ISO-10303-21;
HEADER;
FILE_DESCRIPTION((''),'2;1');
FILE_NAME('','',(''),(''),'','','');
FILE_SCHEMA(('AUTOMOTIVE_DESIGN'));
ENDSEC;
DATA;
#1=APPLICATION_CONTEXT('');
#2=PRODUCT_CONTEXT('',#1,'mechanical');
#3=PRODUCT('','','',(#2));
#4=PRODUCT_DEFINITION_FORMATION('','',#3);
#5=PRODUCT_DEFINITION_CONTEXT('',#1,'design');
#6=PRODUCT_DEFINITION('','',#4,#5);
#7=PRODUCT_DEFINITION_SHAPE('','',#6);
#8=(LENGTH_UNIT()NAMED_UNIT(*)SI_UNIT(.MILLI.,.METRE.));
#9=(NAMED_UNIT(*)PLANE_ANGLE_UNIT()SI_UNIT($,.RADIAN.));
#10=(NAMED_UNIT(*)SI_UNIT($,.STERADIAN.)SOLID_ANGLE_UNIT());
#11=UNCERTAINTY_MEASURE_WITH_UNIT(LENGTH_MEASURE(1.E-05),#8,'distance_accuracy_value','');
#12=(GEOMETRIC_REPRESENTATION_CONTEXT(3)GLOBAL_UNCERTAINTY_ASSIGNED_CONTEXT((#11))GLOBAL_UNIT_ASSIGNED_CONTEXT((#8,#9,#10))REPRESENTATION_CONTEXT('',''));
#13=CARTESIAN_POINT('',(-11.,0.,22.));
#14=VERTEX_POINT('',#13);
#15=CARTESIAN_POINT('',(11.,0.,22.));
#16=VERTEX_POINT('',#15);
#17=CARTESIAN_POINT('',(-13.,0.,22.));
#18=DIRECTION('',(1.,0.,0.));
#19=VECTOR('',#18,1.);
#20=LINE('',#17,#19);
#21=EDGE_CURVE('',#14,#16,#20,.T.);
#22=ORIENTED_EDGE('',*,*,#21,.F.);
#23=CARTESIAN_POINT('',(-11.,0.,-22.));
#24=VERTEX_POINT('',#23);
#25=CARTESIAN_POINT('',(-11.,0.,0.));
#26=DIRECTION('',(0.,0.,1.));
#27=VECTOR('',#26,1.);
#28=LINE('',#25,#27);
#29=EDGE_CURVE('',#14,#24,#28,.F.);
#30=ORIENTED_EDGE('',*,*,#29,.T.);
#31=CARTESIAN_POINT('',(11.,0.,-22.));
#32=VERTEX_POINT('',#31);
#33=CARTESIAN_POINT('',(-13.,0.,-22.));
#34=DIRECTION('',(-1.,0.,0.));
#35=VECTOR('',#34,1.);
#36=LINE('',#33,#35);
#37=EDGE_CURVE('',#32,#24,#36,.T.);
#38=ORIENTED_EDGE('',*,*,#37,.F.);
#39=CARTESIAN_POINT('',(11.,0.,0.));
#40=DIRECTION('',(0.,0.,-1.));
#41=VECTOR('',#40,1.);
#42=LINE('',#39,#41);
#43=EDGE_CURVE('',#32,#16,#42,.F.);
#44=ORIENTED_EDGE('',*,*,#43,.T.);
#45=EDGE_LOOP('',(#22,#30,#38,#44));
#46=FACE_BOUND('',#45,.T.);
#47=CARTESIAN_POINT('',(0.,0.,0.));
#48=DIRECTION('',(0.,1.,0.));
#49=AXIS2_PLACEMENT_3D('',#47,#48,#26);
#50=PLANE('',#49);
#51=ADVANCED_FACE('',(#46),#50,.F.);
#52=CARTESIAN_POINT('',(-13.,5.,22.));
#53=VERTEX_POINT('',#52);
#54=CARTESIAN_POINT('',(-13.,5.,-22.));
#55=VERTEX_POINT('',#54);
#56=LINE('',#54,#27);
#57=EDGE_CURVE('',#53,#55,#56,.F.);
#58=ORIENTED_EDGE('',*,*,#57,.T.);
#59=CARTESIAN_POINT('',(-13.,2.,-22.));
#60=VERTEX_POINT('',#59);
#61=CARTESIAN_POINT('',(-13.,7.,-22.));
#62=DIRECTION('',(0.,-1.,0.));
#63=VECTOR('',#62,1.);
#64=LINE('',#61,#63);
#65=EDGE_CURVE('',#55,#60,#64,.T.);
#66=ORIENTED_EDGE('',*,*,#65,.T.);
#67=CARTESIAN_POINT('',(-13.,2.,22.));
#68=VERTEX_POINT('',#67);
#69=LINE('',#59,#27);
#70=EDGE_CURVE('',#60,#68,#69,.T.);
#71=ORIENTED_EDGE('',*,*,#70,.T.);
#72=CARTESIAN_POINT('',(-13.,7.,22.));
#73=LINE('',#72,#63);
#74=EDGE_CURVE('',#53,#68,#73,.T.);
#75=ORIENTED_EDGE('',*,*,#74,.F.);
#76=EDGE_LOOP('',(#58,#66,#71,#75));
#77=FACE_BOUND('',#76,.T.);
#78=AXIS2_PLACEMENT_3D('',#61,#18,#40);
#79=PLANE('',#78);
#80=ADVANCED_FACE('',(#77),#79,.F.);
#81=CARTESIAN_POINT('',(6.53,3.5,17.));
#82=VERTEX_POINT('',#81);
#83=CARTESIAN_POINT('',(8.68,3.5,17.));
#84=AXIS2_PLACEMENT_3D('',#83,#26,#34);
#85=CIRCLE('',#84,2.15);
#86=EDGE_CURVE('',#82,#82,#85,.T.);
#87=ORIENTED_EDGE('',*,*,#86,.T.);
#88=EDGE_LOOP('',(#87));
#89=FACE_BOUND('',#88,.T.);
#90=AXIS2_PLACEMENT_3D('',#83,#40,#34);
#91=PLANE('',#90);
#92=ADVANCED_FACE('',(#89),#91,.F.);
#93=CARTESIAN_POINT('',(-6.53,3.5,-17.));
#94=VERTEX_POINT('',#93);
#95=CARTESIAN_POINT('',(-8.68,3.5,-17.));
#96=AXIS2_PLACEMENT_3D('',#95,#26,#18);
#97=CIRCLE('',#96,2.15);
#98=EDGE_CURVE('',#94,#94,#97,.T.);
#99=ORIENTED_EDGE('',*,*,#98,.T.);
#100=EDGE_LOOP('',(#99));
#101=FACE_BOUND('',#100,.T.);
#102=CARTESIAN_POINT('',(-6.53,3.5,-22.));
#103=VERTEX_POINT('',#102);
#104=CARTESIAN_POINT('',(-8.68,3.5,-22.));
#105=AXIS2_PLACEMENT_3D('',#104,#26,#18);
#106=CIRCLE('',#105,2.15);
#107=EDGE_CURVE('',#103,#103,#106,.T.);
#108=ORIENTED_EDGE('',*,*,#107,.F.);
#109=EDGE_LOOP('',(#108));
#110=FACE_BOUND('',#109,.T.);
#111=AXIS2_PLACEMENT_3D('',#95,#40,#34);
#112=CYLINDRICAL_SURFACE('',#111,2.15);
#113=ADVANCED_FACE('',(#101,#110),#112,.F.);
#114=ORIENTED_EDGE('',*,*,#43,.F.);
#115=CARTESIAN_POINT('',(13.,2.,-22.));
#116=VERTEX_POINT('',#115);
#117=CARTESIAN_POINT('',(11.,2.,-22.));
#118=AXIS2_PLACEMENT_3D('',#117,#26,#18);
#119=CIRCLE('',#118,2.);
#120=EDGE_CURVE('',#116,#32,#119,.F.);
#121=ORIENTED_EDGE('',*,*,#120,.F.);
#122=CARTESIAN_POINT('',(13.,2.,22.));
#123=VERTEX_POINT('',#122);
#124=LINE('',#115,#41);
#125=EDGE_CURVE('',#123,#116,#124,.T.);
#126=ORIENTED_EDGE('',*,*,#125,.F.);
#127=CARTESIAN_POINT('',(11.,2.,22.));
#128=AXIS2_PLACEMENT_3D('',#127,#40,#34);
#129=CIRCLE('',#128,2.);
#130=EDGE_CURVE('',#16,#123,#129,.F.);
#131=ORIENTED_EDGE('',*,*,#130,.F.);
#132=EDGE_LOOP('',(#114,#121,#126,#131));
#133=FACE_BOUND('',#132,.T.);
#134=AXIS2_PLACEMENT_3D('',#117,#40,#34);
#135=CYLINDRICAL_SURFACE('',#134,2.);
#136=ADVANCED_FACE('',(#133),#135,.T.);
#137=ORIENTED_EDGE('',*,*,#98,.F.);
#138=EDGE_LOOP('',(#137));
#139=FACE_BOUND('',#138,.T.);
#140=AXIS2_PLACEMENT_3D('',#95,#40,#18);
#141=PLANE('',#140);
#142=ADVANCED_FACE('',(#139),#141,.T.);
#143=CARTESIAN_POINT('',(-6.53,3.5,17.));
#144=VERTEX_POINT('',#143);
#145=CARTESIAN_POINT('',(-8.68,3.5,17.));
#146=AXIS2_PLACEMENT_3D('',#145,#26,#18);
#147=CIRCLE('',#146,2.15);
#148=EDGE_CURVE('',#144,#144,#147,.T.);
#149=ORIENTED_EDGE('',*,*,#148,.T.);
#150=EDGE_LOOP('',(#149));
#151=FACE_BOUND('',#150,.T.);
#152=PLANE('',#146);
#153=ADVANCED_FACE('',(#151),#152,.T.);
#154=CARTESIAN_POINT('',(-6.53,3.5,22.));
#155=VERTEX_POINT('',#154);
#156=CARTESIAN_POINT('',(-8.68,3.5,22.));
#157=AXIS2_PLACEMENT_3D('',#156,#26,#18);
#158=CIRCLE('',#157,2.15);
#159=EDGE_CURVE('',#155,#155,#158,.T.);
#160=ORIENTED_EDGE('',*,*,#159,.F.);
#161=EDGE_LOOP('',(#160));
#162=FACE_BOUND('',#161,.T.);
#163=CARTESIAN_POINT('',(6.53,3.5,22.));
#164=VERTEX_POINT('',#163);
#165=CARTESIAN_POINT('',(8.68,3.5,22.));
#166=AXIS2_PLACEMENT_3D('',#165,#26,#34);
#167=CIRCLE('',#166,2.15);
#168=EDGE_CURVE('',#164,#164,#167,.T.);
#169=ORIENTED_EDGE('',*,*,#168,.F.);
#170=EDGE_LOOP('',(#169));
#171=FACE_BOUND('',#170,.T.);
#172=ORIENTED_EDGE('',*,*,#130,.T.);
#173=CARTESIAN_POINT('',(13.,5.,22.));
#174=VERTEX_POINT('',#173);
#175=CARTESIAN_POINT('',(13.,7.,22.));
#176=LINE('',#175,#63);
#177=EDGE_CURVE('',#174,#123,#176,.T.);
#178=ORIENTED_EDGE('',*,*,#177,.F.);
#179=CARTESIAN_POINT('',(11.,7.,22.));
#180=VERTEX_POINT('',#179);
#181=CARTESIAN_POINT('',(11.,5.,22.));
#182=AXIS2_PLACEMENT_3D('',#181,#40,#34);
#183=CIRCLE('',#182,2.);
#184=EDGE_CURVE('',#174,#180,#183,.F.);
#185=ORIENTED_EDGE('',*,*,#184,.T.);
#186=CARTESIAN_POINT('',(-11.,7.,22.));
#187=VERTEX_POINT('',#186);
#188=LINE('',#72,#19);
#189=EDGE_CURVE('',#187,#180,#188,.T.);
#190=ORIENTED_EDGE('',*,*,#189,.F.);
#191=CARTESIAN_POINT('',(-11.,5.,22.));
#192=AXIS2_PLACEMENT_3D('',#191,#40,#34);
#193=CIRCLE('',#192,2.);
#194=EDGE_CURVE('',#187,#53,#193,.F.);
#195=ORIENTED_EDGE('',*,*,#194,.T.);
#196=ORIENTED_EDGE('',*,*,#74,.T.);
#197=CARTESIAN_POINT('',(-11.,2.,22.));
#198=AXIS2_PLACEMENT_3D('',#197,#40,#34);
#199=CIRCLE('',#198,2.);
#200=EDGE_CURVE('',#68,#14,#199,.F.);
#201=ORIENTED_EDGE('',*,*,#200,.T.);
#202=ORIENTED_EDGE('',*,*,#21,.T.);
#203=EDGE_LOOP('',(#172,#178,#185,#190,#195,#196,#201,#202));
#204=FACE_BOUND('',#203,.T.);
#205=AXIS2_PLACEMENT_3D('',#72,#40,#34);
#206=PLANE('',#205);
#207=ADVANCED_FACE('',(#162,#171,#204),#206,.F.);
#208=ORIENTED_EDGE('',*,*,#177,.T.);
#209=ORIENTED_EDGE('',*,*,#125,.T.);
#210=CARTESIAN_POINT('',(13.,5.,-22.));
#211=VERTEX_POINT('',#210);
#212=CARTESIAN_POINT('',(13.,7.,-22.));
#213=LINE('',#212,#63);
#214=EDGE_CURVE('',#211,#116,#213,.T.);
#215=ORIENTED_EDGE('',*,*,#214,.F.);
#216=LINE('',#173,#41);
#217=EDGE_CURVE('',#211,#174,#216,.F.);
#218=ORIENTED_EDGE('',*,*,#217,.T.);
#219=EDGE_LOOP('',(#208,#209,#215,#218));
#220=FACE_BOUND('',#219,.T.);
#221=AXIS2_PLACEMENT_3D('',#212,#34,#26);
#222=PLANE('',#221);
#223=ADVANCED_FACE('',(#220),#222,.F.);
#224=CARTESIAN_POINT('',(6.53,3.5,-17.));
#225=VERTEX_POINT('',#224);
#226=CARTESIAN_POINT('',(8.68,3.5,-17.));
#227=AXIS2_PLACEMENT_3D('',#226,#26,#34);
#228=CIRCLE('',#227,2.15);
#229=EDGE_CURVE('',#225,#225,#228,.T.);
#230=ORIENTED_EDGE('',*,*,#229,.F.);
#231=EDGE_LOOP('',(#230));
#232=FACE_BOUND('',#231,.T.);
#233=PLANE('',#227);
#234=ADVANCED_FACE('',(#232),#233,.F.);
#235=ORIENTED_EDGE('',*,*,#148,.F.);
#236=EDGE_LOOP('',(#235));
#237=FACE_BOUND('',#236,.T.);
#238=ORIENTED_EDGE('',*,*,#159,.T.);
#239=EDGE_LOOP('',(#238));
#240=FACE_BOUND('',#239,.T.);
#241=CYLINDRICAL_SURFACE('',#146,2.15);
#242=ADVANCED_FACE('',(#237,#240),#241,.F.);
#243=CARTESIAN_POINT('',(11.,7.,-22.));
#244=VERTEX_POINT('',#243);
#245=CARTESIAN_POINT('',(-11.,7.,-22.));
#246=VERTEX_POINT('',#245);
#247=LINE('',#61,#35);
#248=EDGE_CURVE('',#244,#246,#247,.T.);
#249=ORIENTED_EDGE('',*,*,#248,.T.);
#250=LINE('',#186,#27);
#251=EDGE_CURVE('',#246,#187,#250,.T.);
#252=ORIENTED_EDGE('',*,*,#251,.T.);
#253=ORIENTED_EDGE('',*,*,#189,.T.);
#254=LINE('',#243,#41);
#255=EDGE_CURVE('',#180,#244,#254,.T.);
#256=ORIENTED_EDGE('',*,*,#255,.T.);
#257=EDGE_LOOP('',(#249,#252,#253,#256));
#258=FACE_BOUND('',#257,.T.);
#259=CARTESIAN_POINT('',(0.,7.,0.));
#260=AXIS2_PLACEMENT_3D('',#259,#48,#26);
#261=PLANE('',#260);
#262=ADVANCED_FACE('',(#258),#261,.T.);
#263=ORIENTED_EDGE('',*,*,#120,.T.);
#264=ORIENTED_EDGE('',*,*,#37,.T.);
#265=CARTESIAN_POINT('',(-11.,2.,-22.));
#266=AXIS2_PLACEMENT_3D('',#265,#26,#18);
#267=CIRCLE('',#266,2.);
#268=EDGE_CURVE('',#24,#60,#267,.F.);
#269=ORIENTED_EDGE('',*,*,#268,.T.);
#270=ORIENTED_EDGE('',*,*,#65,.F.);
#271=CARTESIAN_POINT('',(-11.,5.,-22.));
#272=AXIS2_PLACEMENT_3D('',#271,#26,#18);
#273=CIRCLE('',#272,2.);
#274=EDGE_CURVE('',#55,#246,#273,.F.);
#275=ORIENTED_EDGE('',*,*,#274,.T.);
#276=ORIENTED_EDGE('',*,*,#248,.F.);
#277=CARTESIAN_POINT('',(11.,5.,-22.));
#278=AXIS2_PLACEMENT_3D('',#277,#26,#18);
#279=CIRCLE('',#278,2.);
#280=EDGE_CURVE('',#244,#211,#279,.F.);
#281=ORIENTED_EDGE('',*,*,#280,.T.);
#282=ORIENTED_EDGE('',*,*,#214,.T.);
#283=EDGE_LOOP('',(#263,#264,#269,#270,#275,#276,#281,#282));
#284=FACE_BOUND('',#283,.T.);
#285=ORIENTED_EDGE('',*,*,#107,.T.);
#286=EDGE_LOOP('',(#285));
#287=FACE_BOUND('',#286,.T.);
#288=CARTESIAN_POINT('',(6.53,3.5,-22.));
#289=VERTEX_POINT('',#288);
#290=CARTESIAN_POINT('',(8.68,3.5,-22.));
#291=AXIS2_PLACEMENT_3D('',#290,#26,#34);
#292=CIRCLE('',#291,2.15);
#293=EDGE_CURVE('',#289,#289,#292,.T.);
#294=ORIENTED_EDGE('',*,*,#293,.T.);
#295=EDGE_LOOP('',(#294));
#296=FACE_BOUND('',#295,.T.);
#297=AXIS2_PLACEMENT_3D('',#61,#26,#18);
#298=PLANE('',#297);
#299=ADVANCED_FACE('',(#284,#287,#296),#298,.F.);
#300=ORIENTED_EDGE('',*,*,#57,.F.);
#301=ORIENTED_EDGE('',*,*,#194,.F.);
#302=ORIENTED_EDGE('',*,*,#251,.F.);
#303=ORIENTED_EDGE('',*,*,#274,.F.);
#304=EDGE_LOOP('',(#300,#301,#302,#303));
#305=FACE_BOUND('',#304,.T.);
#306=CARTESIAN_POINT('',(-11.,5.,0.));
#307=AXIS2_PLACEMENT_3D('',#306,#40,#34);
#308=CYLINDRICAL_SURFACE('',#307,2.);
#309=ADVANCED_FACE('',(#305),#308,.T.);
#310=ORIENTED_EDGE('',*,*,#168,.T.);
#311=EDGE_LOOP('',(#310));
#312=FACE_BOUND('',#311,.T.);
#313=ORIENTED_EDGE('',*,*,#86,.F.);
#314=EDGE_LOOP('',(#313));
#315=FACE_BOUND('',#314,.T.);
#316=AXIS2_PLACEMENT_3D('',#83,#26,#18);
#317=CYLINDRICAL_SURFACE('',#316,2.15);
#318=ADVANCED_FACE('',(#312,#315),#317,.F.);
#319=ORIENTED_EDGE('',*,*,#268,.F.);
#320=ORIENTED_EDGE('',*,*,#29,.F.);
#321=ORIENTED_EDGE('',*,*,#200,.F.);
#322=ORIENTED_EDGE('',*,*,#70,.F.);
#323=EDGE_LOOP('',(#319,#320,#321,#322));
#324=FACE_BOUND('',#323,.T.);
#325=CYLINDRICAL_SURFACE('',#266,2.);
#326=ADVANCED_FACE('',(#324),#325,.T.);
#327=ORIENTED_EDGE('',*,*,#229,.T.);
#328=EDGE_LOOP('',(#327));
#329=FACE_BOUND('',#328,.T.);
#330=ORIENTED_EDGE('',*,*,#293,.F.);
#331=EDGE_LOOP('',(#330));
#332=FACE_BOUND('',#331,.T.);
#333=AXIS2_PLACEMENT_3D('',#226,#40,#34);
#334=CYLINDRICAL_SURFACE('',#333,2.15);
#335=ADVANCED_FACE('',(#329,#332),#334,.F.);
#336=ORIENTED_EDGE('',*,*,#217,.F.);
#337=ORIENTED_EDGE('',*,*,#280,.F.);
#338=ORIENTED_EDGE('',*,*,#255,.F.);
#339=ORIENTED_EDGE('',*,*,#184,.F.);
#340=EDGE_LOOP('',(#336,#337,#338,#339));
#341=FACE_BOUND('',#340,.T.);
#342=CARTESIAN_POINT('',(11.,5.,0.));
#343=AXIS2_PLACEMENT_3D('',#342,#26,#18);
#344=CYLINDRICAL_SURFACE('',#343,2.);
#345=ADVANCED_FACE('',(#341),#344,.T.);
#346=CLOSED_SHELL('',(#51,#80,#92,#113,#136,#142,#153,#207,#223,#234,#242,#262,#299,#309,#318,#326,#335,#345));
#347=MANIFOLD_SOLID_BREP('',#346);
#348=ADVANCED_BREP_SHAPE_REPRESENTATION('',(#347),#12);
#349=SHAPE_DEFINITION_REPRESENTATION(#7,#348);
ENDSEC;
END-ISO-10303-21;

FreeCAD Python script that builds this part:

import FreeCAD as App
import Part
import Sketcher

V = App.Vector


def edges_at(feature, points):
    """Names of the edges that pass closest to the given points."""
    edges = feature.Shape.Edges
    near = lambda p: min(range(len(edges)), key=lambda i: edges[i].distToShape(Part.Vertex(*p))[0])
    return sorted({f"Edge{near(p) + 1}" for p in points})


def add_polygon(sketch, points):
    """Adds a closed chain of lines whose ends are joined by coincident constraints."""
    first, n = sketch.GeometryCount, len(points)
    for a, b in zip(points, points[1:] + points[:1]):
        sketch.addGeometry(Part.LineSegment(App.Vector(*a, 0), App.Vector(*b, 0)), False)
    for i in range(n):
        sketch.addConstraint(Sketcher.Constraint("Coincident", first + i, 2, first + (i + 1) % n, 1))

doc = App.newDocument("Part")
body = doc.addObject("PartDesign::Body", "Body")

# Sketch on XZ plane
sketch1 = doc.addObject("Sketcher::SketchObject", "Sketch")
body.addObject(sketch1)
sketch1.AttachmentSupport = (doc.XZ_Plane, [""])
sketch1.MapMode = "FlatFace"
add_polygon(sketch1, [(-13, -22), (-13, 22), (13, 22), (13, -22)])  # lines 0-3
sketch1.addConstraint([
    Sketcher.Constraint("Vertical", 0),
    Sketcher.Constraint("Horizontal", 1),
    Sketcher.Constraint("Vertical", 2),
    Sketcher.Constraint("Horizontal", 3),
    Sketcher.Constraint("Symmetric", 0, 2, 2, 2, -1, 1),
    Sketcher.Constraint("DistanceX", 1, 1, 1, 2, 26.0),
    Sketcher.Constraint("DistanceY", 0, 1, 0, 2, 44.0),
])
pad1 = doc.addObject("PartDesign::Pad", "Pad")
body.addObject(pad1)
pad1.Profile = sketch1
pad1.Length = 7
pad1.Reversed = True

# Sketch on XY plane
sketch2 = doc.addObject("Sketcher::SketchObject", "Sketch001")
body.addObject(sketch2)
sketch2.AttachmentSupport = (doc.XY_Plane, [""])
sketch2.MapMode = "FlatFace"
sketch2.AttachmentOffset = App.Placement(V(0, 0, 22), App.Rotation())
sketch2.addGeometry([
    Part.Circle(V(-8.7, 3.5, 0), V(0, 0, 1), 2.1),
    Part.Circle(V(8.7, 3.5, 0), V(0, 0, 1), 2.1),
], False)
sketch2.addConstraint([
    Sketcher.Constraint("Equal", 0, 1),
    Sketcher.Constraint("Symmetric", 0, 3, 1, 3, -2),
    Sketcher.Constraint("Diameter", 0, 4.3),
    Sketcher.Constraint("DistanceY", -1, 1, 0, 3, 3.5),
    Sketcher.Constraint("DistanceX", 0, 3, -1, 1, 8.68),
])
pocket1 = doc.addObject("PartDesign::Pocket", "Pocket")
body.addObject(pocket1)
pocket1.Profile = sketch2
pocket1.Length = 5
doc.recompute()

mirrored = doc.addObject("PartDesign::Mirrored", "Mirrored")
body.addObject(mirrored)
mirrored.Originals = [pocket1]
mirrored.MirrorPlane = (doc.XY_Plane, [""])
body.Tip = mirrored
doc.recompute()

fillet = doc.addObject("PartDesign::Fillet", "Fillet")
body.addObject(fillet)
fillet.Base = (mirrored, edges_at(mirrored, [
    (-13, 7, 0),
    (13, 7, 0),
    (-13, 0, 0),
    (13, 0, 0),
]))
fillet.Radius = 2

doc.recompute()
